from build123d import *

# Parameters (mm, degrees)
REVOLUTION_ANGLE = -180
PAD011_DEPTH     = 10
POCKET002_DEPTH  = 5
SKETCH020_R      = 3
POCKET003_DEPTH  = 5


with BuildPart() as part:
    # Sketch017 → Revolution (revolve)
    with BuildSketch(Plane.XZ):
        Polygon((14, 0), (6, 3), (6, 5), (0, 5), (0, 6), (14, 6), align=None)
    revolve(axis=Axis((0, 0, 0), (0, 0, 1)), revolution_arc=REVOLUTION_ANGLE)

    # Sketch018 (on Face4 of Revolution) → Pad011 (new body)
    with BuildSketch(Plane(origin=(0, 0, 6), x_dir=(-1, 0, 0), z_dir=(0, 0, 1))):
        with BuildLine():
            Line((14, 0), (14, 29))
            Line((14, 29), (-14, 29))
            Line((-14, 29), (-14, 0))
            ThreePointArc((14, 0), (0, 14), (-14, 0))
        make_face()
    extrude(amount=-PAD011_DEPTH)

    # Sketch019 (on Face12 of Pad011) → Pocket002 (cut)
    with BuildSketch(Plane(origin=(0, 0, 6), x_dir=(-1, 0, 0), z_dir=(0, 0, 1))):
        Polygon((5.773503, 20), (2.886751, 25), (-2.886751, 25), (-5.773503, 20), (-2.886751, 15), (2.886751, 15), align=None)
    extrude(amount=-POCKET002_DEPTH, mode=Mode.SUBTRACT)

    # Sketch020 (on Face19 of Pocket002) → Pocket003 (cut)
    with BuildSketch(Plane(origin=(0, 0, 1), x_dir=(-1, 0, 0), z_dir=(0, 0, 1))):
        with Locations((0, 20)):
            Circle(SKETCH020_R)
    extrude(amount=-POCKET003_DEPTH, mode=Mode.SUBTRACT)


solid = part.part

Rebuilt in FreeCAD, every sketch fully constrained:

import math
import FreeCAD as App
import Part
import Sketcher
Q = App.Units.Quantity

doc = App.newDocument("Part")
body = doc.addObject("PartDesign::Body", "Body")

sketch1 = body.newObject("Sketcher::SketchObject", "Sketch")
sketch1.AttachmentSupport = (doc.getObject("XZ_Plane"), [""])
sketch1.MapMode = "FlatFace"
sketch1.addGeometry(Part.LineSegment(App.Vector(6, 3, 0), App.Vector(14, 0, 0)), False)
sketch1.addGeometry(Part.LineSegment(App.Vector(14, 0, 0), App.Vector(14, 6, 0)), False)
sketch1.addGeometry(Part.LineSegment(App.Vector(14, 6, 0), App.Vector(0, 6, 0)), False)
sketch1.addGeometry(Part.LineSegment(App.Vector(0, 6, 0), App.Vector(0, 5, 0)), False)
sketch1.addGeometry(Part.LineSegment(App.Vector(0, 5, 0), App.Vector(6, 5, 0)), False)
sketch1.addGeometry(Part.LineSegment(App.Vector(6, 5, 0), App.Vector(6, 3, 0)), False)
sketch1.addConstraint(Sketcher.Constraint("Coincident", 0, 2, 1, 1))
sketch1.addConstraint(Sketcher.Constraint("Coincident", 1, 2, 2, 1))
sketch1.addConstraint(Sketcher.Constraint("Coincident", 2, 2, 3, 1))
sketch1.addConstraint(Sketcher.Constraint("Coincident", 3, 2, 4, 1))
sketch1.addConstraint(Sketcher.Constraint("Coincident", 4, 2, 5, 1))
sketch1.addConstraint(Sketcher.Constraint("Coincident", 5, 2, 0, 1))
sketch1.addConstraint(Sketcher.Constraint("Vertical", 1))
sketch1.addConstraint(Sketcher.Constraint("Horizontal", 2))
sketch1.addConstraint(Sketcher.Constraint("Vertical", 3))
sketch1.addConstraint(Sketcher.Constraint("Horizontal", 4))
sketch1.addConstraint(Sketcher.Constraint("Vertical", 5))
sketch1.addConstraint(Sketcher.Constraint("PointOnObject", 0, 2, -1))
sketch1.addConstraint(Sketcher.Constraint("PointOnObject", 2, 2, -2))
sketch1.addConstraint(Sketcher.Constraint("Equal", 4, 1))
sketch1.addConstraint(Sketcher.Constraint("DistanceX", 2, 2, 2, 1, 14.0))
sketch1.addConstraint(Sketcher.Constraint("DistanceX", 4, 1, 4, 2, 6.0))
sketch1.addConstraint(Sketcher.Constraint("DistanceY", 3, 2, 3, 1, 1.0))
sketch1.addConstraint(Sketcher.Constraint("DistanceY", 5, 2, 5, 1, 2.0))
revolution = body.newObject("PartDesign::Revolution", "Revolution")
revolution.Profile = sketch1
revolution.ReferenceAxis = (sketch1, ["V_Axis"])
revolution.Angle = 180
revolution.Reversed = True

sketch2 = body.newObject("Sketcher::SketchObject", "Sketch001")
sketch2.AttachmentSupport = (doc.getObject("XY_Plane"), [""])
sketch2.MapMode = "FlatFace"
sketch2.AttachmentOffset = App.Placement(App.Vector(0, 0, 6), App.Rotation())
sketch2.addGeometry(Part.LineSegment(App.Vector(-14, 0, 0), App.Vector(-14, -29, 0)), False)
sketch2.addGeometry(Part.LineSegment(App.Vector(-14, -29, 0), App.Vector(14, -29, 0)), False)
sketch2.addGeometry(Part.LineSegment(App.Vector(14, -29, 0), App.Vector(14, 0, 0)), False)
sketch2.addGeometry(Part.ArcOfCircle(Part.Circle(App.Vector(0, 0, 0), App.Vector(0, 0, 1), 14), math.radians(180), math.radians(360)), False)
sketch2.addConstraint(Sketcher.Constraint("Coincident", 0, 2, 1, 1))
sketch2.addConstraint(Sketcher.Constraint("Coincident", 1, 2, 2, 1))
sketch2.addConstraint(Sketcher.Constraint("Tangent", 2, 2, 3, 2))
sketch2.addConstraint(Sketcher.Constraint("Tangent", 3, 1, 0, 1))
sketch2.addConstraint(Sketcher.Constraint("Vertical", 0))
sketch2.addConstraint(Sketcher.Constraint("Horizontal", 1))
sketch2.addConstraint(Sketcher.Constraint("Vertical", 2))
sketch2.addConstraint(Sketcher.Constraint("Coincident", 3, 3, -1, 1))
sketch2.addConstraint(Sketcher.Constraint("Radius", 3, 14.0))
sketch2.addConstraint(Sketcher.Constraint("DistanceY", 0, 2, 0, 1, 29.0))
pad1 = body.newObject("PartDesign::Pad", "Pad")
pad1.Profile = sketch2
pad1.Length = 10
pad1.Reversed = True

sketch3 = body.newObject("Sketcher::SketchObject", "Sketch002")
sketch3.AttachmentSupport = (doc.getObject("XY_Plane"), [""])
sketch3.MapMode = "FlatFace"
sketch3.AttachmentOffset = App.Placement(App.Vector(0, 0, 6), App.Rotation())
sketch3.addGeometry(Part.LineSegment(App.Vector(-6, -20, 0), App.Vector(-3, -25, 0)), False)
sketch3.addGeometry(Part.LineSegment(App.Vector(-3, -25, 0), App.Vector(3, -25, 0)), False)
sketch3.addGeometry(Part.LineSegment(App.Vector(3, -25, 0), App.Vector(6, -20, 0)), False)
sketch3.addGeometry(Part.LineSegment(App.Vector(6, -20, 0), App.Vector(3, -15, 0)), False)
sketch3.addGeometry(Part.LineSegment(App.Vector(3, -15, 0), App.Vector(-3, -15, 0)), False)
sketch3.addGeometry(Part.LineSegment(App.Vector(-3, -15, 0), App.Vector(-6, -20, 0)), False)
sketch3.addConstraint(Sketcher.Constraint("Coincident", 0, 2, 1, 1))
sketch3.addConstraint(Sketcher.Constraint("Coincident", 1, 2, 2, 1))
sketch3.addConstraint(Sketcher.Constraint("Coincident", 2, 2, 3, 1))
sketch3.addConstraint(Sketcher.Constraint("Coincident", 3, 2, 4, 1))
sketch3.addConstraint(Sketcher.Constraint("Coincident", 4, 2, 5, 1))
sketch3.addConstraint(Sketcher.Constraint("Coincident", 5, 2, 0, 1))
sketch3.addConstraint(Sketcher.Constraint("Horizontal", 1))
sketch3.addConstraint(Sketcher.Constraint("Horizontal", 4))
sketch3.addConstraint(Sketcher.Constraint("Symmetric", 2, 2, 5, 2, -2))
sketch3.addConstraint(Sketcher.Constraint("Parallel", 0, 3))
sketch3.addConstraint(Sketcher.Constraint("Parallel", 2, 5))
sketch3.addConstraint(Sketcher.Constraint("Vertical", 1, 2, 3, 2))
sketch3.addConstraint(Sketcher.Constraint("Vertical", 0, 2, 4, 2))
sketch3.addConstraint(Sketcher.Constraint("Angle", 0, Q("-59.999994 deg")))
sketch3.addConstraint(Sketcher.Constraint("DistanceY", 0, 2, -1, 1, 25.0))
sketch3.addConstraint(Sketcher.Constraint("DistanceY", 2, 2, -1, 1, 20.0))
sketch3.addConstraint(Sketcher.Constraint("DistanceX", 1, 1, 1, 2, 5.773502))
pocket1 = body.newObject("PartDesign::Pocket", "Pocket")
pocket1.Profile = sketch3
pocket1.Length = 5

sketch4 = body.newObject("Sketcher::SketchObject", "Sketch003")
sketch4.AttachmentSupport = (doc.getObject("XY_Plane"), [""])
sketch4.MapMode = "FlatFace"
sketch4.AttachmentOffset = App.Placement(App.Vector(0, 0, 1), App.Rotation())
sketch4.addGeometry(Part.Circle(App.Vector(0, -20, 0), App.Vector(0, 0, 1), 3), False)
sketch4.addConstraint(Sketcher.Constraint("PointOnObject", 0, 3, -2))
sketch4.addConstraint(Sketcher.Constraint("Diameter", 0, 6.0))
sketch4.addConstraint(Sketcher.Constraint("DistanceY", 0, 3, -1, 1, 20.0))
pocket2 = body.newObject("PartDesign::Pocket", "Pocket001")
pocket2.Profile = sketch4
pocket2.Length = 5

doc.recompute()
